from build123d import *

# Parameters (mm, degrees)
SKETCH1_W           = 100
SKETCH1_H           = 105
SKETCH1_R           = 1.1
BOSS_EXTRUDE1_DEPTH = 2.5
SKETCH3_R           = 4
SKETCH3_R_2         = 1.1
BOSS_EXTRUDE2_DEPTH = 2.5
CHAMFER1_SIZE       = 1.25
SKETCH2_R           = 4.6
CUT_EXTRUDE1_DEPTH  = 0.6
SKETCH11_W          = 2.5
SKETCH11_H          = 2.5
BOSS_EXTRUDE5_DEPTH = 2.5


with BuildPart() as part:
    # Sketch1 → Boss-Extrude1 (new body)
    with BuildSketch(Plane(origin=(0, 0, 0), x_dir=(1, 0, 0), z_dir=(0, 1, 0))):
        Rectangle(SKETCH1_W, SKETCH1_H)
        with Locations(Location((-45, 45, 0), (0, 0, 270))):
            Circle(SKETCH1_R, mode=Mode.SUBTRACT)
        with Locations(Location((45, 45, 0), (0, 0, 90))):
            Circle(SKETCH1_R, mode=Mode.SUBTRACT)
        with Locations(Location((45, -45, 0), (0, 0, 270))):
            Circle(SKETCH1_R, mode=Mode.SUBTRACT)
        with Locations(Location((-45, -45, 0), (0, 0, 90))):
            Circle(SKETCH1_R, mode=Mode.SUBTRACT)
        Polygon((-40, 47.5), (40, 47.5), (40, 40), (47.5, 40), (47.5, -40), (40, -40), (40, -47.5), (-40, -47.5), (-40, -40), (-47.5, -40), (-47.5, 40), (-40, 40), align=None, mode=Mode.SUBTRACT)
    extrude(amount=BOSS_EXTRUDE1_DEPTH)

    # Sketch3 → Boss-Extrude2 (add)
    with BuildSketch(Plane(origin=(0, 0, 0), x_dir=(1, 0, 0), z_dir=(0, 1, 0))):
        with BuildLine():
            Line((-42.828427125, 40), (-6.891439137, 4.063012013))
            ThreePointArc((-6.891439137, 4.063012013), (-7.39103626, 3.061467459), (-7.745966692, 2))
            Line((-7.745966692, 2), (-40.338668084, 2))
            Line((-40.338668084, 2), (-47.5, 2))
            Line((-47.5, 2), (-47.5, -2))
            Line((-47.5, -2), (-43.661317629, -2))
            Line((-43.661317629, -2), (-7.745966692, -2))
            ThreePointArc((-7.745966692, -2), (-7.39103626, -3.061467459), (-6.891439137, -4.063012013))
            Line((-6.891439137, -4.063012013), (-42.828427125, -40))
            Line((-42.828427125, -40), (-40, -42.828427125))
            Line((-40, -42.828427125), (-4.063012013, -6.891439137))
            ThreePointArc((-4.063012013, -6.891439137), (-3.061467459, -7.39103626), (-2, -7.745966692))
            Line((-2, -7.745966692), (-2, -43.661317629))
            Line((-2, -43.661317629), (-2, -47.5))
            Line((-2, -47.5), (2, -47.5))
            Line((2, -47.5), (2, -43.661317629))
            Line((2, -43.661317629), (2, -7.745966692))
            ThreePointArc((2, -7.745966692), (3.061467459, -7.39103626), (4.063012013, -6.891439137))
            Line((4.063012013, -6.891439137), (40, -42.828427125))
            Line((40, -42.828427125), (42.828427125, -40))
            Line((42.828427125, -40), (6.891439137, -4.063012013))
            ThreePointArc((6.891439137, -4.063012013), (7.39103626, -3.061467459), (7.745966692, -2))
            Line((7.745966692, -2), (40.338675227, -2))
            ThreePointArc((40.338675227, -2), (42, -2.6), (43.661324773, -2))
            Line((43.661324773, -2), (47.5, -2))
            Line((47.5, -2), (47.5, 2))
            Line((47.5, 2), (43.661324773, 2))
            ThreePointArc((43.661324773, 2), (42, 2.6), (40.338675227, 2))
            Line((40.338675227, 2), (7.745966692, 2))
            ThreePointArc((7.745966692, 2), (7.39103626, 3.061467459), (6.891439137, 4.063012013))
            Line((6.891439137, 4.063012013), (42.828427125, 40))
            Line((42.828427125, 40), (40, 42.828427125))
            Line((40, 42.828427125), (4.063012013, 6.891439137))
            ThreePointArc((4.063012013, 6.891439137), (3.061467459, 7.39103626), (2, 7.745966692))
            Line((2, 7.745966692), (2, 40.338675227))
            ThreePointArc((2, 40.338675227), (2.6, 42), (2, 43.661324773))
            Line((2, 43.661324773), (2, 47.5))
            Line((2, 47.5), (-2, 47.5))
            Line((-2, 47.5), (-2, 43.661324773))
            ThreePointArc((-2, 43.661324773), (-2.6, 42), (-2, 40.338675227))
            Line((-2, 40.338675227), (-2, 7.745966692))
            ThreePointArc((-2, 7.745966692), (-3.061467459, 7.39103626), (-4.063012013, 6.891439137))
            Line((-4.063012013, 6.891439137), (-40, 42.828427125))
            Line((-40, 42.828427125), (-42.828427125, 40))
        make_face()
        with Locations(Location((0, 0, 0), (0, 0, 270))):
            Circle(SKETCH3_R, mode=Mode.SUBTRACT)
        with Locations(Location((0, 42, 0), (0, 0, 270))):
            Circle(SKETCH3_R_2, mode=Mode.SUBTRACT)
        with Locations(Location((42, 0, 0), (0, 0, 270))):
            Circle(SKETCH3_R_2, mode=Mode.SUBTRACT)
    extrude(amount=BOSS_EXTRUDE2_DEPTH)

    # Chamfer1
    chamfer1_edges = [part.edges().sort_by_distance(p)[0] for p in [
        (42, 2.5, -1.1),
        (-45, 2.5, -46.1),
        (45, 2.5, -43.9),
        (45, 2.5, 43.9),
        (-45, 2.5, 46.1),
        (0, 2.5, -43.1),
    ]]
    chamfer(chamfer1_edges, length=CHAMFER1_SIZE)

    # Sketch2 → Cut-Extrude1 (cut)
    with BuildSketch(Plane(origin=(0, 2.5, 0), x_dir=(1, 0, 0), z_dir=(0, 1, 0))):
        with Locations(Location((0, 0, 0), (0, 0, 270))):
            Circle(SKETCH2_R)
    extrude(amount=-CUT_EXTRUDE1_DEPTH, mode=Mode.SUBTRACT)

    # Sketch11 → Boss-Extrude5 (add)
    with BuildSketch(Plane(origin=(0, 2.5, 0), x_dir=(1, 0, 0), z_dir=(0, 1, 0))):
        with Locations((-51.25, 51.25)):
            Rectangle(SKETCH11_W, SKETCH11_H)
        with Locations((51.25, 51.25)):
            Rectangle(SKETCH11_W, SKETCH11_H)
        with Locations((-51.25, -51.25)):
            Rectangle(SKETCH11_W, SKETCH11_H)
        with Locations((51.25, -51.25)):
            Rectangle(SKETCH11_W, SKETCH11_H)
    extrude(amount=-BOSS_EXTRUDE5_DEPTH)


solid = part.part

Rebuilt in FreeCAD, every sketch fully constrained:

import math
import FreeCAD as App
import Part
import Sketcher


def edges_at(feature, points):
    """Names of the edges that pass closest to the given points."""
    edges = feature.Shape.Edges
    near = lambda p: min(range(len(edges)), key=lambda i: edges[i].distToShape(Part.Vertex(*p))[0])
    return sorted({f"Edge{near(p) + 1}" for p in points})

doc = App.newDocument("Part")
body = doc.addObject("PartDesign::Body", "Body")

# Sketch on XZ plane
sketch1 = body.newObject("Sketcher::SketchObject", "Sketch")
sketch1.AttachmentSupport = (doc.getObject("XZ_Plane"), [""])
sketch1.MapMode = "FlatFace"
sketch1.addGeometry([
    Part.LineSegment(App.Vector(-50, -52.5, 0), App.Vector(-50, 52.5, 0)),  # 0
    Part.LineSegment(App.Vector(-50, 52.5, 0), App.Vector(50, 52.5, 0)),  # 1
    Part.LineSegment(App.Vector(50, 52.5, 0), App.Vector(50, -52.5, 0)),  # 2
    Part.LineSegment(App.Vector(50, -52.5, 0), App.Vector(-50, -52.5, 0)),  # 3
    Part.Circle(App.Vector(-45, 45, 0), App.Vector(0, 0, 1), 1.1),  # 4
    Part.Circle(App.Vector(45, 45, 0), App.Vector(0, 0, 1), 1.1),  # 5
    Part.Circle(App.Vector(-45, -45, 0), App.Vector(0, 0, 1), 1.1),  # 6
    Part.LineSegment(App.Vector(-40, -40, 0), App.Vector(-40, -47.5, 0)),  # 7
    Part.LineSegment(App.Vector(-40, -47.5, 0), App.Vector(40, -47.5, 0)),  # 8
    Part.LineSegment(App.Vector(40, -47.5, 0), App.Vector(40, -40, 0)),  # 9
    Part.LineSegment(App.Vector(40, -40, 0), App.Vector(47.5, -40, 0)),  # 10
    Part.LineSegment(App.Vector(47.5, -40, 0), App.Vector(47.5, 40, 0)),  # 11
    Part.LineSegment(App.Vector(47.5, 40, 0), App.Vector(40, 40, 0)),  # 12
    Part.LineSegment(App.Vector(40, 40, 0), App.Vector(40, 47.5, 0)),  # 13
    Part.LineSegment(App.Vector(40, 47.5, 0), App.Vector(-40, 47.5, 0)),  # 14
    Part.LineSegment(App.Vector(-40, 47.5, 0), App.Vector(-40, 40, 0)),  # 15
    Part.LineSegment(App.Vector(-40, 40, 0), App.Vector(-47.5, 40, 0)),  # 16
    Part.LineSegment(App.Vector(-47.5, 40, 0), App.Vector(-47.5, -40, 0)),  # 17
    Part.LineSegment(App.Vector(-47.5, -40, 0), App.Vector(-40, -40, 0)),  # 18
    Part.Circle(App.Vector(45, -45, 0), App.Vector(0, 0, 1), 1.1),  # 19
], False)
sketch1.addConstraint([
    Sketcher.Constraint("Coincident", 0, 2, 1, 1),
    Sketcher.Constraint("Coincident", 1, 2, 2, 1),
    Sketcher.Constraint("Coincident", 2, 2, 3, 1),
    Sketcher.Constraint("Coincident", 3, 2, 0, 1),
    Sketcher.Constraint("Coincident", 7, 2, 8, 1),
    Sketcher.Constraint("Coincident", 8, 2, 9, 1),
    Sketcher.Constraint("Coincident", 9, 2, 10, 1),
    Sketcher.Constraint("Coincident", 10, 2, 11, 1),
    Sketcher.Constraint("Coincident", 11, 2, 12, 1),
    Sketcher.Constraint("Coincident", 12, 2, 13, 1),
    Sketcher.Constraint("Coincident", 13, 2, 14, 1),
    Sketcher.Constraint("Coincident", 14, 2, 15, 1),
    Sketcher.Constraint("Coincident", 15, 2, 16, 1),
    Sketcher.Constraint("Coincident", 16, 2, 17, 1),
    Sketcher.Constraint("Coincident", 17, 2, 18, 1),
    Sketcher.Constraint("Coincident", 18, 2, 7, 1),
    Sketcher.Constraint("Vertical", 0),
    Sketcher.Constraint("Horizontal", 1),
    Sketcher.Constraint("Vertical", 2),
    Sketcher.Constraint("Horizontal", 3),
    Sketcher.Constraint("Vertical", 7),
    Sketcher.Constraint("Horizontal", 8),
    Sketcher.Constraint("Vertical", 9),
    Sketcher.Constraint("Horizontal", 10),
    Sketcher.Constraint("Vertical", 11),
    Sketcher.Constraint("Horizontal", 12),
    Sketcher.Constraint("Vertical", 13),
    Sketcher.Constraint("Horizontal", 14),
    Sketcher.Constraint("Vertical", 15),
    Sketcher.Constraint("Horizontal", 16),
    Sketcher.Constraint("Vertical", 17),
    Sketcher.Constraint("Horizontal", 18),
    Sketcher.Constraint("Equal", 4, 5),
    Sketcher.Constraint("Equal", 5, 6),
    Sketcher.Constraint("Equal", 6, 19),
    Sketcher.Constraint("Symmetric", 5, 3, 6, 3, -1, 1),
    Sketcher.Constraint("Symmetric", 4, 3, 19, 3, -1, 1),
    Sketcher.Constraint("Symmetric", 0, 2, 2, 2, -1, 1),
    Sketcher.Constraint("Symmetric", 7, 2, 13, 2, -1, 1),
    Sketcher.Constraint("Symmetric", 9, 2, 15, 2, -1, 1),
    Sketcher.Constraint("Symmetric", 11, 2, 17, 2, -1, 1),
    Sketcher.Constraint("Symmetric", 4, 3, 5, 3, -2),
    Sketcher.Constraint("Symmetric", 12, 2, 15, 2, -2),
    Sketcher.Constraint("Equal", 18, 7),
    Sketcher.Constraint("Equal", 14, 11),
    Sketcher.Constraint("Diameter", 4, 2.2),
    Sketcher.Constraint("DistanceX", 1, 1, 1, 2, 100.0),
    Sketcher.Constraint("DistanceX", 8, 1, 8, 2, 80.0),
    Sketcher.Constraint("DistanceY", 0, 1, 0, 2, 105.0),
    Sketcher.Constraint("DistanceX", 10, 1, 10, 2, 7.5),
    Sketcher.Constraint("DistanceX", 4, 3, -1, 1, 45.0),
    Sketcher.Constraint("DistanceY", -1, 1, 4, 3, 45.0),
])
pad1 = body.newObject("PartDesign::Pad", "Pad")
pad1.Profile = sketch1
pad1.Length = 2.5
pad1.Reversed = True

# Sketch on XZ plane
sketch2 = body.newObject("Sketcher::SketchObject", "Sketch001")
sketch2.AttachmentSupport = (doc.getObject("XZ_Plane"), [""])
sketch2.MapMode = "FlatFace"
sketch2.addGeometry([
    Part.LineSegment(App.Vector(-42.8, -40, 0), App.Vector(-6.9, -4.1, 0)),  # 0
    Part.ArcOfCircle(Part.Circle(App.Vector(0, 0, 0), App.Vector(0, 0, 1), 8), math.radians(-165.52), math.radians(-149.48)),  # 1
    Part.LineSegment(App.Vector(-7.7, -2, 0), App.Vector(-47.5, -2, 0)),  # 2
    Part.LineSegment(App.Vector(-47.5, -2, 0), App.Vector(-47.5, 2, 0)),  # 3
    Part.LineSegment(App.Vector(-47.5, 2, 0), App.Vector(-7.7, 2, 0)),  # 4
    Part.ArcOfCircle(Part.Circle(App.Vector(0, 0, 0), App.Vector(0, 0, 1), 8), math.radians(149.48), math.radians(165.52)),  # 5
    Part.LineSegment(App.Vector(-6.9, 4.1, 0), App.Vector(-42.8, 40, 0)),  # 6
    Part.LineSegment(App.Vector(-42.8, 40, 0), App.Vector(-40, 42.8, 0)),  # 7
    Part.LineSegment(App.Vector(-40, 42.8, 0), App.Vector(-4.1, 6.9, 0)),  # 8
    Part.ArcOfCircle(Part.Circle(App.Vector(0, 0, 0), App.Vector(0, 0, 1), 8), math.radians(104.48), math.radians(120.52)),  # 9
    Part.LineSegment(App.Vector(-2, 7.7, 0), App.Vector(-2, 47.5, 0)),  # 10
    Part.LineSegment(App.Vector(-2, 47.5, 0), App.Vector(2, 47.5, 0)),  # 11
    Part.LineSegment(App.Vector(2, 47.5, 0), App.Vector(2, 7.7, 0)),  # 12
    Part.ArcOfCircle(Part.Circle(App.Vector(0, 0, 0), App.Vector(0, 0, 1), 8), math.radians(59.48), math.radians(75.52)),  # 13
    Part.LineSegment(App.Vector(4.1, 6.9, 0), App.Vector(40, 42.8, 0)),  # 14
    Part.LineSegment(App.Vector(40, 42.8, 0), App.Vector(42.8, 40, 0)),  # 15
    Part.LineSegment(App.Vector(42.8, 40, 0), App.Vector(6.9, 4.1, 0)),  # 16
    Part.ArcOfCircle(Part.Circle(App.Vector(0, 0, 0), App.Vector(0, 0, 1), 8), math.radians(14.48), math.radians(30.52)),  # 17
    Part.LineSegment(App.Vector(7.7, 2, 0), App.Vector(40.3, 2, 0)),  # 18
    Part.ArcOfCircle(Part.Circle(App.Vector(42, 0, 0), App.Vector(0, 0, 1), 2.6), math.radians(50), math.radians(130)),  # 19
    Part.LineSegment(App.Vector(43.7, 2, 0), App.Vector(47.5, 2, 0)),  # 20
    Part.LineSegment(App.Vector(47.5, 2, 0), App.Vector(47.5, -2, 0)),  # 21
    Part.LineSegment(App.Vector(47.5, -2, 0), App.Vector(43.7, -2, 0)),  # 22
    Part.ArcOfCircle(Part.Circle(App.Vector(42, 0, 0), App.Vector(0, 0, 1), 2.6), math.radians(-130), math.radians(-50)),  # 23
    Part.LineSegment(App.Vector(40.3, -2, 0), App.Vector(7.7, -2, 0)),  # 24
    Part.ArcOfCircle(Part.Circle(App.Vector(0, 0, 0), App.Vector(0, 0, 1), 8), math.radians(-30.52), math.radians(-14.48)),  # 25
    Part.LineSegment(App.Vector(6.9, -4.1, 0), App.Vector(42.8, -40, 0)),  # 26
    Part.LineSegment(App.Vector(42.8, -40, 0), App.Vector(40, -42.8, 0)),  # 27
    Part.LineSegment(App.Vector(40, -42.8, 0), App.Vector(4.1, -6.9, 0)),  # 28
    Part.ArcOfCircle(Part.Circle(App.Vector(0, 0, 0), App.Vector(0, 0, 1), 8), math.radians(-75.52), math.radians(-59.48)),  # 29
    Part.LineSegment(App.Vector(2, -7.7, 0), App.Vector(2, -40.3, 0)),  # 30
    Part.ArcOfCircle(Part.Circle(App.Vector(0, -42, 0), App.Vector(0, 0, 1), 2.6), math.radians(-40), math.radians(40)),  # 31
    Part.LineSegment(App.Vector(2, -43.7, 0), App.Vector(2, -47.5, 0)),  # 32
    Part.LineSegment(App.Vector(2, -47.5, 0), App.Vector(-2, -47.5, 0)),  # 33
    Part.LineSegment(App.Vector(-2, -47.5, 0), App.Vector(-2, -43.7, 0)),  # 34
    Part.ArcOfCircle(Part.Circle(App.Vector(0, -42, 0), App.Vector(0, 0, 1), 2.6), math.radians(140), math.radians(220)),  # 35
    Part.LineSegment(App.Vector(-2, -40.3, 0), App.Vector(-2, -7.7, 0)),  # 36
    Part.ArcOfCircle(Part.Circle(App.Vector(0, 0, 0), App.Vector(0, 0, 1), 8), math.radians(-120.52), math.radians(-104.48)),  # 37
    Part.LineSegment(App.Vector(-4.1, -6.9, 0), App.Vector(-40, -42.8, 0)),  # 38
    Part.LineSegment(App.Vector(-40, -42.8, 0), App.Vector(-42.8, -40, 0)),  # 39
    Part.Circle(App.Vector(0, 0, 0), App.Vector(0, 0, 1), 4),  # 40
    Part.Circle(App.Vector(42, 0, 0), App.Vector(0, 0, 1), 1.1),  # 41
    Part.Circle(App.Vector(0, -42, 0), App.Vector(0, 0, 1), 1.1),  # 42
], False)
sketch2.addConstraint([
    Sketcher.Constraint("Coincident", 0, 2, 1, 2),
    Sketcher.Constraint("Coincident", 1, 1, 2, 1),
    Sketcher.Constraint("Coincident", 2, 2, 3, 1),
    Sketcher.Constraint("Coincident", 3, 2, 4, 1),
    Sketcher.Constraint("Coincident", 4, 2, 5, 2),
    Sketcher.Constraint("Coincident", 5, 1, 6, 1),
    Sketcher.Constraint("Coincident", 6, 2, 7, 1),
    Sketcher.Constraint("Coincident", 7, 2, 8, 1),
    Sketcher.Constraint("Coincident", 8, 2, 9, 2),
    Sketcher.Constraint("Coincident", 9, 1, 10, 1),
    Sketcher.Constraint("Coincident", 10, 2, 11, 1),
    Sketcher.Constraint("Coincident", 11, 2, 12, 1),
    Sketcher.Constraint("Coincident", 12, 2, 13, 2),
    Sketcher.Constraint("Coincident", 13, 1, 14, 1),
    Sketcher.Constraint("Coincident", 14, 2, 15, 1),
    Sketcher.Constraint("Coincident", 15, 2, 16, 1),
    Sketcher.Constraint("Coincident", 16, 2, 17, 2),
    Sketcher.Constraint("Coincident", 17, 1, 18, 1),
    Sketcher.Constraint("Coincident", 18, 2, 19, 2),
    Sketcher.Constraint("Coincident", 19, 1, 20, 1),
    Sketcher.Constraint("Coincident", 20, 2, 21, 1),
    Sketcher.Constraint("Coincident", 21, 2, 22, 1),
    Sketcher.Constraint("Coincident", 22, 2, 23, 2),
    Sketcher.Constraint("Coincident", 23, 1, 24, 1),
    Sketcher.Constraint("Coincident", 24, 2, 25, 2),
    Sketcher.Constraint("Coincident", 25, 1, 26, 1),
    Sketcher.Constraint("Coincident", 26, 2, 27, 1),
    Sketcher.Constraint("Coincident", 27, 2, 28, 1),
    Sketcher.Constraint("Coincident", 28, 2, 29, 2),
    Sketcher.Constraint("Coincident", 29, 1, 30, 1),
    Sketcher.Constraint("Coincident", 30, 2, 31, 2),
    Sketcher.Constraint("Coincident", 31, 1, 32, 1),
    Sketcher.Constraint("Coincident", 32, 2, 33, 1),
    Sketcher.Constraint("Coincident", 33, 2, 34, 1),
    Sketcher.Constraint("Coincident", 34, 2, 35, 2),
    Sketcher.Constraint("Coincident", 35, 1, 36, 1),
    Sketcher.Constraint("Coincident", 36, 2, 37, 2),
    Sketcher.Constraint("Coincident", 37, 1, 38, 1),
    Sketcher.Constraint("Coincident", 38, 2, 39, 1),
    Sketcher.Constraint("Coincident", 39, 2, 0, 1),
    Sketcher.Constraint("Horizontal", 2),
    Sketcher.Constraint("Vertical", 3),
    Sketcher.Constraint("Horizontal", 4),
    Sketcher.Constraint("Vertical", 10),
    Sketcher.Constraint("Horizontal", 11),
    Sketcher.Constraint("Vertical", 12),
    Sketcher.Constraint("Horizontal", 18),
    Sketcher.Constraint("Horizontal", 20),
    Sketcher.Constraint("Vertical", 21),
    Sketcher.Constraint("Horizontal", 22),
    Sketcher.Constraint("Horizontal", 24),
    Sketcher.Constraint("Vertical", 30),
    Sketcher.Constraint("Vertical", 32),
    Sketcher.Constraint("Horizontal", 33),
    Sketcher.Constraint("Vertical", 34),
    Sketcher.Constraint("Vertical", 36),
    Sketcher.Constraint("Coincident", 1, 3, -1, 1),
    Sketcher.Constraint("Coincident", 5, 3, -1, 1),
    Sketcher.Constraint("Coincident", 9, 3, -1, 1),
    Sketcher.Constraint("Coincident", 13, 3, -1, 1),
    Sketcher.Constraint("Coincident", 17, 3, -1, 1),
    Sketcher.Constraint("Coincident", 25, 3, -1, 1),
    Sketcher.Constraint("Coincident", 29, 3, -1, 1),
    Sketcher.Constraint("Coincident", 37, 3, -1, 1),
    Sketcher.Constraint("Coincident", 40, 3, -1, 1),
    Sketcher.Constraint("Coincident", 23, 3, 19, 3),
    Sketcher.Constraint("Coincident", 35, 3, 31, 3),
    Sketcher.Constraint("Coincident", 41, 3, 19, 3),
    Sketcher.Constraint("Coincident", 42, 3, 31, 3),
    Sketcher.Constraint("Equal", 1, 5),
    Sketcher.Constraint("Equal", 5, 9),
    Sketcher.Constraint("Equal", 9, 13),
    Sketcher.Constraint("Equal", 13, 17),
    Sketcher.Constraint("Equal", 19, 23),
    Sketcher.Constraint("Equal", 17, 25),
    Sketcher.Constraint("Equal", 25, 29),
    Sketcher.Constraint("Equal", 23, 31),
    Sketcher.Constraint("Equal", 31, 35),
    Sketcher.Constraint("Equal", 29, 37),
    Sketcher.Constraint("Equal", 41, 42),
    Sketcher.Constraint("Symmetric", 2, 2, 20, 2, -1, 1),
    Sketcher.Constraint("Symmetric", 6, 2, 26, 2, -1, 1),
    Sketcher.Constraint("Symmetric", 7, 2, 27, 2, -1, 1),
    Sketcher.Constraint("Symmetric", 10, 2, 32, 2, -1, 1),
    Sketcher.Constraint("Symmetric", 14, 2, 38, 2, -1, 1),
    Sketcher.Constraint("Symmetric", 15, 2, 39, 2, -1, 1),
    Sketcher.Constraint("Symmetric", 7, 2, 14, 2, -2),
    Sketcher.Constraint("Symmetric", 6, 2, 15, 2, -2),
    Sketcher.Constraint("Symmetric", 31, 1, 34, 2, -2),
    Sketcher.Constraint("Symmetric", 19, 1, 22, 2, -1),
    Sketcher.Constraint("Perpendicular", 0, 6),
    Sketcher.Constraint("Perpendicular", 6, 7),
    Sketcher.Constraint("Perpendicular", 7, 8),
    Sketcher.Constraint("Perpendicular", 8, 14),
    Sketcher.Constraint("Perpendicular", 14, 15),
    Sketcher.Constraint("Perpendicular", 15, 16),
    Sketcher.Constraint("Perpendicular", 16, 26),
    Sketcher.Constraint("Perpendicular", 27, 28),
    Sketcher.Constraint("Perpendicular", 28, 38),
    Sketcher.Constraint("Horizontal", 9, 1, 12, 2),
    Sketcher.Constraint("Horizontal", 4, 2, 17, 1),
    Sketcher.Constraint("Horizontal", 18, 2, 19, 1),
    Sketcher.Constraint("Horizontal", 22, 2, 23, 1),
    Sketcher.Constraint("Horizontal", 30, 2, 35, 1),
    Sketcher.Constraint("Vertical", 12, 2, 29, 1),
    Sketcher.Constraint("Equal", 33, 3),
    Sketcher.Constraint("Equal", 4, 10),
    Sketcher.Constraint("Equal", 24, 30),
    Sketcher.Constraint("Equal", 6, 8),
    Sketcher.Constraint("Diameter", 40, 8.0),
    Sketcher.Constraint("Radius", 1, 8.0),
    Sketcher.Constraint("Diameter", 41, 2.2),
    Sketcher.Constraint("Radius", 19, 2.6),
    Sketcher.Constraint("DistanceX", 11, 1, 11, 2, 4.0),
    Sketcher.Constraint("Distance", 7, 4.0),
    Sketcher.Constraint("DistanceX", -1, 1, 19, 3, 42.0),
    Sketcher.Constraint("DistanceY", -1, 1, 6, 2, 40.0),
    Sketcher.Constraint("DistanceX", 2, 2, -1, 1, 47.5),
])
pad2 = body.newObject("PartDesign::Pad", "Pad001")
pad2.Profile = sketch2
pad2.Length = 2.5
pad2.Reversed = True
doc.recompute()

chamfer = body.newObject("PartDesign::Chamfer", "Chamfer")
chamfer.Base = (pad2, edges_at(pad2, [
    (42, 2.5, -1.1),
    (-45, 2.5, -46.1),
    (45, 2.5, -43.9),
    (45, 2.5, 43.9),
    (-45, 2.5, 46.1),
    (0, 2.5, -43.1),
]))
chamfer.Size = 1.25

# Sketch on XZ plane
sketch3 = body.newObject("Sketcher::SketchObject", "Sketch002")
sketch3.AttachmentSupport = (doc.getObject("XZ_Plane"), [""])
sketch3.MapMode = "FlatFace"
sketch3.AttachmentOffset = App.Placement(App.Vector(0, 0, -2.5), App.Rotation())
sketch3.addGeometry(Part.Circle(App.Vector(0, 0, 0), App.Vector(0, 0, 1), 4.6), False)
sketch3.addConstraint([
    Sketcher.Constraint("Coincident", 0, 3, -1, 1),
    Sketcher.Constraint("Diameter", 0, 9.2),
])
pocket1 = body.newObject("PartDesign::Pocket", "Pocket")
pocket1.Profile = sketch3
pocket1.Length = 0.6
pocket1.Reversed = True

# Sketch on XZ plane
sketch4 = body.newObject("Sketcher::SketchObject", "Sketch003")
sketch4.AttachmentSupport = (doc.getObject("XZ_Plane"), [""])
sketch4.MapMode = "FlatFace"
sketch4.AttachmentOffset = App.Placement(App.Vector(0, 0, -2.5), App.Rotation())
sketch4.addGeometry([
    Part.LineSegment(App.Vector(-52.5, -52.5, 0), App.Vector(-52.5, -50, 0)),  # 0
    Part.LineSegment(App.Vector(-52.5, -50, 0), App.Vector(-50, -50, 0)),  # 1
    Part.LineSegment(App.Vector(-50, -50, 0), App.Vector(-50, -52.5, 0)),  # 2
    Part.LineSegment(App.Vector(-50, -52.5, 0), App.Vector(-52.5, -52.5, 0)),  # 3
    Part.LineSegment(App.Vector(50, -52.5, 0), App.Vector(50, -50, 0)),  # 4
    Part.LineSegment(App.Vector(50, -50, 0), App.Vector(52.5, -50, 0)),  # 5
    Part.LineSegment(App.Vector(52.5, -50, 0), App.Vector(52.5, -52.5, 0)),  # 6
    Part.LineSegment(App.Vector(52.5, -52.5, 0), App.Vector(50, -52.5, 0)),  # 7
    Part.LineSegment(App.Vector(-52.5, 50, 0), App.Vector(-52.5, 52.5, 0)),  # 8
    Part.LineSegment(App.Vector(-52.5, 52.5, 0), App.Vector(-50, 52.5, 0)),  # 9
    Part.LineSegment(App.Vector(-50, 52.5, 0), App.Vector(-50, 50, 0)),  # 10
    Part.LineSegment(App.Vector(-50, 50, 0), App.Vector(-52.5, 50, 0)),  # 11
    Part.LineSegment(App.Vector(50, 50, 0), App.Vector(50, 52.5, 0)),  # 12
    Part.LineSegment(App.Vector(50, 52.5, 0), App.Vector(52.5, 52.5, 0)),  # 13
    Part.LineSegment(App.Vector(52.5, 52.5, 0), App.Vector(52.5, 50, 0)),  # 14
    Part.LineSegment(App.Vector(52.5, 50, 0), App.Vector(50, 50, 0)),  # 15
], False)
sketch4.addConstraint([
    Sketcher.Constraint("Coincident", 0, 2, 1, 1),
    Sketcher.Constraint("Coincident", 1, 2, 2, 1),
    Sketcher.Constraint("Coincident", 2, 2, 3, 1),
    Sketcher.Constraint("Coincident", 3, 2, 0, 1),
    Sketcher.Constraint("Coincident", 4, 2, 5, 1),
    Sketcher.Constraint("Coincident", 5, 2, 6, 1),
    Sketcher.Constraint("Coincident", 6, 2, 7, 1),
    Sketcher.Constraint("Coincident", 7, 2, 4, 1),
    Sketcher.Constraint("Coincident", 8, 2, 9, 1),
    Sketcher.Constraint("Coincident", 9, 2, 10, 1),
    Sketcher.Constraint("Coincident", 10, 2, 11, 1),
    Sketcher.Constraint("Coincident", 11, 2, 8, 1),
    Sketcher.Constraint("Coincident", 12, 2, 13, 1),
    Sketcher.Constraint("Coincident", 13, 2, 14, 1),
    Sketcher.Constraint("Coincident", 14, 2, 15, 1),
    Sketcher.Constraint("Coincident", 15, 2, 12, 1),
    Sketcher.Constraint("Vertical", 0),
    Sketcher.Constraint("Horizontal", 1),
    Sketcher.Constraint("Vertical", 2),
    Sketcher.Constraint("Horizontal", 3),
    Sketcher.Constraint("Vertical", 4),
    Sketcher.Constraint("Horizontal", 5),
    Sketcher.Constraint("Vertical", 6),
    Sketcher.Constraint("Horizontal", 7),
    Sketcher.Constraint("Vertical", 8),
    Sketcher.Constraint("Horizontal", 9),
    Sketcher.Constraint("Vertical", 10),
    Sketcher.Constraint("Horizontal", 11),
    Sketcher.Constraint("Vertical", 12),
    Sketcher.Constraint("Horizontal", 13),
    Sketcher.Constraint("Vertical", 14),
    Sketcher.Constraint("Horizontal", 15),
    Sketcher.Constraint("Symmetric", 6, 2, 8, 2, -1, 1),
    Sketcher.Constraint("Symmetric", 4, 2, 10, 2, -1, 1),
    Sketcher.Constraint("Symmetric", 2, 2, 12, 2, -1, 1),
    Sketcher.Constraint("Symmetric", 0, 2, 14, 2, -1, 1),
    Sketcher.Constraint("Symmetric", 1, 2, 4, 2, -2),
    Sketcher.Constraint("Symmetric", 3, 2, 6, 2, -2),
    Sketcher.Constraint("Equal", 15, 0),
    Sketcher.Constraint("DistanceX", 1, 1, 1, 2, 2.5),
    Sketcher.Constraint("DistanceY", 0, 2, -1, 1, 50.0),
    Sketcher.Constraint("DistanceX", 1, 2, -1, 1, 50.0),
])
pad3 = body.newObject("PartDesign::Pad", "Pad002")
pad3.Profile = sketch4
pad3.Length = 2.5

doc.recompute()
